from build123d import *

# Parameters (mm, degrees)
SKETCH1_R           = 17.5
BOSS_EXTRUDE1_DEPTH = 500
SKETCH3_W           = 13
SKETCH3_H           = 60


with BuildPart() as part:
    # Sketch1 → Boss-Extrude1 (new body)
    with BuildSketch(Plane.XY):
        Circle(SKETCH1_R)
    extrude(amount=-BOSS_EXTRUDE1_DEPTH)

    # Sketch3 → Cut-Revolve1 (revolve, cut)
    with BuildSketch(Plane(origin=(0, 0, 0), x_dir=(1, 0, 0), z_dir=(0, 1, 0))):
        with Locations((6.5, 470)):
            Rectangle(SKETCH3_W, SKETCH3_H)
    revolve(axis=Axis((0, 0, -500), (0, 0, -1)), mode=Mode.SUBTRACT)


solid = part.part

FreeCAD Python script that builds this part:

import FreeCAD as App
import Part
import Sketcher
Q = App.Units.Quantity

doc = App.newDocument("Part")
body = doc.addObject("PartDesign::Body", "Body")

# Sketch on XY plane
sketch1 = doc.addObject("Sketcher::SketchObject", "Sketch")
body.addObject(sketch1)
sketch1.AttachmentSupport = (doc.XY_Plane, [""])
sketch1.MapMode = "FlatFace"
sketch1.addGeometry(Part.Circle(App.Vector(0, 0, 0), App.Vector(0, 0, 1), 17.5), False)
sketch1.addConstraint([
    Sketcher.Constraint("Coincident", 0, 3, -1, 1),
    Sketcher.Constraint("Diameter", 0, Q("35 mm")),
])
pad1 = doc.addObject("PartDesign::Pad", "Pad")
body.addObject(pad1)
pad1.Profile = sketch1
pad1.Length = 500
pad1.Reversed = True

# Sketch on XZ plane
sketch2 = doc.addObject("Sketcher::SketchObject", "Sketch001")
body.addObject(sketch2)
sketch2.AttachmentSupport = (doc.XZ_Plane, [""])
sketch2.MapMode = "FlatFace"
sketch2.addGeometry([
    Part.LineSegment(App.Vector(0, -500, 0), App.Vector(0, -440, 0)),
    Part.LineSegment(App.Vector(0, -440, 0), App.Vector(13, -440, 0)),
    Part.LineSegment(App.Vector(13, -440, 0), App.Vector(13, -500, 0)),
    Part.LineSegment(App.Vector(13, -500, 0), App.Vector(0, -500, 0)),
], False)
sketch2.addConstraint([
    Sketcher.Constraint("Coincident", 0, 2, 1, 1),
    Sketcher.Constraint("Coincident", 1, 2, 2, 1),
    Sketcher.Constraint("Coincident", 2, 2, 3, 1),
    Sketcher.Constraint("Coincident", 3, 2, 0, 1),
    Sketcher.Constraint("Vertical", 0),
    Sketcher.Constraint("Horizontal", 1),
    Sketcher.Constraint("Vertical", 2),
    Sketcher.Constraint("Horizontal", 3),
    Sketcher.Constraint("PointOnObject", 0, 2, -2),
    Sketcher.Constraint("DistanceX", 1, 1, 1, 2, Q("13 mm")),
    Sketcher.Constraint("DistanceY", 0, 1, 0, 2, Q("60 mm")),
    Sketcher.Constraint("DistanceY", 0, 2, -1, 1, Q("440 mm")),
])
groove = doc.addObject("PartDesign::Groove", "Groove")
body.addObject(groove)
groove.Profile = sketch2
groove.ReferenceAxis = (sketch2, ["V_Axis"])
groove.Angle = 360

doc.recompute()
